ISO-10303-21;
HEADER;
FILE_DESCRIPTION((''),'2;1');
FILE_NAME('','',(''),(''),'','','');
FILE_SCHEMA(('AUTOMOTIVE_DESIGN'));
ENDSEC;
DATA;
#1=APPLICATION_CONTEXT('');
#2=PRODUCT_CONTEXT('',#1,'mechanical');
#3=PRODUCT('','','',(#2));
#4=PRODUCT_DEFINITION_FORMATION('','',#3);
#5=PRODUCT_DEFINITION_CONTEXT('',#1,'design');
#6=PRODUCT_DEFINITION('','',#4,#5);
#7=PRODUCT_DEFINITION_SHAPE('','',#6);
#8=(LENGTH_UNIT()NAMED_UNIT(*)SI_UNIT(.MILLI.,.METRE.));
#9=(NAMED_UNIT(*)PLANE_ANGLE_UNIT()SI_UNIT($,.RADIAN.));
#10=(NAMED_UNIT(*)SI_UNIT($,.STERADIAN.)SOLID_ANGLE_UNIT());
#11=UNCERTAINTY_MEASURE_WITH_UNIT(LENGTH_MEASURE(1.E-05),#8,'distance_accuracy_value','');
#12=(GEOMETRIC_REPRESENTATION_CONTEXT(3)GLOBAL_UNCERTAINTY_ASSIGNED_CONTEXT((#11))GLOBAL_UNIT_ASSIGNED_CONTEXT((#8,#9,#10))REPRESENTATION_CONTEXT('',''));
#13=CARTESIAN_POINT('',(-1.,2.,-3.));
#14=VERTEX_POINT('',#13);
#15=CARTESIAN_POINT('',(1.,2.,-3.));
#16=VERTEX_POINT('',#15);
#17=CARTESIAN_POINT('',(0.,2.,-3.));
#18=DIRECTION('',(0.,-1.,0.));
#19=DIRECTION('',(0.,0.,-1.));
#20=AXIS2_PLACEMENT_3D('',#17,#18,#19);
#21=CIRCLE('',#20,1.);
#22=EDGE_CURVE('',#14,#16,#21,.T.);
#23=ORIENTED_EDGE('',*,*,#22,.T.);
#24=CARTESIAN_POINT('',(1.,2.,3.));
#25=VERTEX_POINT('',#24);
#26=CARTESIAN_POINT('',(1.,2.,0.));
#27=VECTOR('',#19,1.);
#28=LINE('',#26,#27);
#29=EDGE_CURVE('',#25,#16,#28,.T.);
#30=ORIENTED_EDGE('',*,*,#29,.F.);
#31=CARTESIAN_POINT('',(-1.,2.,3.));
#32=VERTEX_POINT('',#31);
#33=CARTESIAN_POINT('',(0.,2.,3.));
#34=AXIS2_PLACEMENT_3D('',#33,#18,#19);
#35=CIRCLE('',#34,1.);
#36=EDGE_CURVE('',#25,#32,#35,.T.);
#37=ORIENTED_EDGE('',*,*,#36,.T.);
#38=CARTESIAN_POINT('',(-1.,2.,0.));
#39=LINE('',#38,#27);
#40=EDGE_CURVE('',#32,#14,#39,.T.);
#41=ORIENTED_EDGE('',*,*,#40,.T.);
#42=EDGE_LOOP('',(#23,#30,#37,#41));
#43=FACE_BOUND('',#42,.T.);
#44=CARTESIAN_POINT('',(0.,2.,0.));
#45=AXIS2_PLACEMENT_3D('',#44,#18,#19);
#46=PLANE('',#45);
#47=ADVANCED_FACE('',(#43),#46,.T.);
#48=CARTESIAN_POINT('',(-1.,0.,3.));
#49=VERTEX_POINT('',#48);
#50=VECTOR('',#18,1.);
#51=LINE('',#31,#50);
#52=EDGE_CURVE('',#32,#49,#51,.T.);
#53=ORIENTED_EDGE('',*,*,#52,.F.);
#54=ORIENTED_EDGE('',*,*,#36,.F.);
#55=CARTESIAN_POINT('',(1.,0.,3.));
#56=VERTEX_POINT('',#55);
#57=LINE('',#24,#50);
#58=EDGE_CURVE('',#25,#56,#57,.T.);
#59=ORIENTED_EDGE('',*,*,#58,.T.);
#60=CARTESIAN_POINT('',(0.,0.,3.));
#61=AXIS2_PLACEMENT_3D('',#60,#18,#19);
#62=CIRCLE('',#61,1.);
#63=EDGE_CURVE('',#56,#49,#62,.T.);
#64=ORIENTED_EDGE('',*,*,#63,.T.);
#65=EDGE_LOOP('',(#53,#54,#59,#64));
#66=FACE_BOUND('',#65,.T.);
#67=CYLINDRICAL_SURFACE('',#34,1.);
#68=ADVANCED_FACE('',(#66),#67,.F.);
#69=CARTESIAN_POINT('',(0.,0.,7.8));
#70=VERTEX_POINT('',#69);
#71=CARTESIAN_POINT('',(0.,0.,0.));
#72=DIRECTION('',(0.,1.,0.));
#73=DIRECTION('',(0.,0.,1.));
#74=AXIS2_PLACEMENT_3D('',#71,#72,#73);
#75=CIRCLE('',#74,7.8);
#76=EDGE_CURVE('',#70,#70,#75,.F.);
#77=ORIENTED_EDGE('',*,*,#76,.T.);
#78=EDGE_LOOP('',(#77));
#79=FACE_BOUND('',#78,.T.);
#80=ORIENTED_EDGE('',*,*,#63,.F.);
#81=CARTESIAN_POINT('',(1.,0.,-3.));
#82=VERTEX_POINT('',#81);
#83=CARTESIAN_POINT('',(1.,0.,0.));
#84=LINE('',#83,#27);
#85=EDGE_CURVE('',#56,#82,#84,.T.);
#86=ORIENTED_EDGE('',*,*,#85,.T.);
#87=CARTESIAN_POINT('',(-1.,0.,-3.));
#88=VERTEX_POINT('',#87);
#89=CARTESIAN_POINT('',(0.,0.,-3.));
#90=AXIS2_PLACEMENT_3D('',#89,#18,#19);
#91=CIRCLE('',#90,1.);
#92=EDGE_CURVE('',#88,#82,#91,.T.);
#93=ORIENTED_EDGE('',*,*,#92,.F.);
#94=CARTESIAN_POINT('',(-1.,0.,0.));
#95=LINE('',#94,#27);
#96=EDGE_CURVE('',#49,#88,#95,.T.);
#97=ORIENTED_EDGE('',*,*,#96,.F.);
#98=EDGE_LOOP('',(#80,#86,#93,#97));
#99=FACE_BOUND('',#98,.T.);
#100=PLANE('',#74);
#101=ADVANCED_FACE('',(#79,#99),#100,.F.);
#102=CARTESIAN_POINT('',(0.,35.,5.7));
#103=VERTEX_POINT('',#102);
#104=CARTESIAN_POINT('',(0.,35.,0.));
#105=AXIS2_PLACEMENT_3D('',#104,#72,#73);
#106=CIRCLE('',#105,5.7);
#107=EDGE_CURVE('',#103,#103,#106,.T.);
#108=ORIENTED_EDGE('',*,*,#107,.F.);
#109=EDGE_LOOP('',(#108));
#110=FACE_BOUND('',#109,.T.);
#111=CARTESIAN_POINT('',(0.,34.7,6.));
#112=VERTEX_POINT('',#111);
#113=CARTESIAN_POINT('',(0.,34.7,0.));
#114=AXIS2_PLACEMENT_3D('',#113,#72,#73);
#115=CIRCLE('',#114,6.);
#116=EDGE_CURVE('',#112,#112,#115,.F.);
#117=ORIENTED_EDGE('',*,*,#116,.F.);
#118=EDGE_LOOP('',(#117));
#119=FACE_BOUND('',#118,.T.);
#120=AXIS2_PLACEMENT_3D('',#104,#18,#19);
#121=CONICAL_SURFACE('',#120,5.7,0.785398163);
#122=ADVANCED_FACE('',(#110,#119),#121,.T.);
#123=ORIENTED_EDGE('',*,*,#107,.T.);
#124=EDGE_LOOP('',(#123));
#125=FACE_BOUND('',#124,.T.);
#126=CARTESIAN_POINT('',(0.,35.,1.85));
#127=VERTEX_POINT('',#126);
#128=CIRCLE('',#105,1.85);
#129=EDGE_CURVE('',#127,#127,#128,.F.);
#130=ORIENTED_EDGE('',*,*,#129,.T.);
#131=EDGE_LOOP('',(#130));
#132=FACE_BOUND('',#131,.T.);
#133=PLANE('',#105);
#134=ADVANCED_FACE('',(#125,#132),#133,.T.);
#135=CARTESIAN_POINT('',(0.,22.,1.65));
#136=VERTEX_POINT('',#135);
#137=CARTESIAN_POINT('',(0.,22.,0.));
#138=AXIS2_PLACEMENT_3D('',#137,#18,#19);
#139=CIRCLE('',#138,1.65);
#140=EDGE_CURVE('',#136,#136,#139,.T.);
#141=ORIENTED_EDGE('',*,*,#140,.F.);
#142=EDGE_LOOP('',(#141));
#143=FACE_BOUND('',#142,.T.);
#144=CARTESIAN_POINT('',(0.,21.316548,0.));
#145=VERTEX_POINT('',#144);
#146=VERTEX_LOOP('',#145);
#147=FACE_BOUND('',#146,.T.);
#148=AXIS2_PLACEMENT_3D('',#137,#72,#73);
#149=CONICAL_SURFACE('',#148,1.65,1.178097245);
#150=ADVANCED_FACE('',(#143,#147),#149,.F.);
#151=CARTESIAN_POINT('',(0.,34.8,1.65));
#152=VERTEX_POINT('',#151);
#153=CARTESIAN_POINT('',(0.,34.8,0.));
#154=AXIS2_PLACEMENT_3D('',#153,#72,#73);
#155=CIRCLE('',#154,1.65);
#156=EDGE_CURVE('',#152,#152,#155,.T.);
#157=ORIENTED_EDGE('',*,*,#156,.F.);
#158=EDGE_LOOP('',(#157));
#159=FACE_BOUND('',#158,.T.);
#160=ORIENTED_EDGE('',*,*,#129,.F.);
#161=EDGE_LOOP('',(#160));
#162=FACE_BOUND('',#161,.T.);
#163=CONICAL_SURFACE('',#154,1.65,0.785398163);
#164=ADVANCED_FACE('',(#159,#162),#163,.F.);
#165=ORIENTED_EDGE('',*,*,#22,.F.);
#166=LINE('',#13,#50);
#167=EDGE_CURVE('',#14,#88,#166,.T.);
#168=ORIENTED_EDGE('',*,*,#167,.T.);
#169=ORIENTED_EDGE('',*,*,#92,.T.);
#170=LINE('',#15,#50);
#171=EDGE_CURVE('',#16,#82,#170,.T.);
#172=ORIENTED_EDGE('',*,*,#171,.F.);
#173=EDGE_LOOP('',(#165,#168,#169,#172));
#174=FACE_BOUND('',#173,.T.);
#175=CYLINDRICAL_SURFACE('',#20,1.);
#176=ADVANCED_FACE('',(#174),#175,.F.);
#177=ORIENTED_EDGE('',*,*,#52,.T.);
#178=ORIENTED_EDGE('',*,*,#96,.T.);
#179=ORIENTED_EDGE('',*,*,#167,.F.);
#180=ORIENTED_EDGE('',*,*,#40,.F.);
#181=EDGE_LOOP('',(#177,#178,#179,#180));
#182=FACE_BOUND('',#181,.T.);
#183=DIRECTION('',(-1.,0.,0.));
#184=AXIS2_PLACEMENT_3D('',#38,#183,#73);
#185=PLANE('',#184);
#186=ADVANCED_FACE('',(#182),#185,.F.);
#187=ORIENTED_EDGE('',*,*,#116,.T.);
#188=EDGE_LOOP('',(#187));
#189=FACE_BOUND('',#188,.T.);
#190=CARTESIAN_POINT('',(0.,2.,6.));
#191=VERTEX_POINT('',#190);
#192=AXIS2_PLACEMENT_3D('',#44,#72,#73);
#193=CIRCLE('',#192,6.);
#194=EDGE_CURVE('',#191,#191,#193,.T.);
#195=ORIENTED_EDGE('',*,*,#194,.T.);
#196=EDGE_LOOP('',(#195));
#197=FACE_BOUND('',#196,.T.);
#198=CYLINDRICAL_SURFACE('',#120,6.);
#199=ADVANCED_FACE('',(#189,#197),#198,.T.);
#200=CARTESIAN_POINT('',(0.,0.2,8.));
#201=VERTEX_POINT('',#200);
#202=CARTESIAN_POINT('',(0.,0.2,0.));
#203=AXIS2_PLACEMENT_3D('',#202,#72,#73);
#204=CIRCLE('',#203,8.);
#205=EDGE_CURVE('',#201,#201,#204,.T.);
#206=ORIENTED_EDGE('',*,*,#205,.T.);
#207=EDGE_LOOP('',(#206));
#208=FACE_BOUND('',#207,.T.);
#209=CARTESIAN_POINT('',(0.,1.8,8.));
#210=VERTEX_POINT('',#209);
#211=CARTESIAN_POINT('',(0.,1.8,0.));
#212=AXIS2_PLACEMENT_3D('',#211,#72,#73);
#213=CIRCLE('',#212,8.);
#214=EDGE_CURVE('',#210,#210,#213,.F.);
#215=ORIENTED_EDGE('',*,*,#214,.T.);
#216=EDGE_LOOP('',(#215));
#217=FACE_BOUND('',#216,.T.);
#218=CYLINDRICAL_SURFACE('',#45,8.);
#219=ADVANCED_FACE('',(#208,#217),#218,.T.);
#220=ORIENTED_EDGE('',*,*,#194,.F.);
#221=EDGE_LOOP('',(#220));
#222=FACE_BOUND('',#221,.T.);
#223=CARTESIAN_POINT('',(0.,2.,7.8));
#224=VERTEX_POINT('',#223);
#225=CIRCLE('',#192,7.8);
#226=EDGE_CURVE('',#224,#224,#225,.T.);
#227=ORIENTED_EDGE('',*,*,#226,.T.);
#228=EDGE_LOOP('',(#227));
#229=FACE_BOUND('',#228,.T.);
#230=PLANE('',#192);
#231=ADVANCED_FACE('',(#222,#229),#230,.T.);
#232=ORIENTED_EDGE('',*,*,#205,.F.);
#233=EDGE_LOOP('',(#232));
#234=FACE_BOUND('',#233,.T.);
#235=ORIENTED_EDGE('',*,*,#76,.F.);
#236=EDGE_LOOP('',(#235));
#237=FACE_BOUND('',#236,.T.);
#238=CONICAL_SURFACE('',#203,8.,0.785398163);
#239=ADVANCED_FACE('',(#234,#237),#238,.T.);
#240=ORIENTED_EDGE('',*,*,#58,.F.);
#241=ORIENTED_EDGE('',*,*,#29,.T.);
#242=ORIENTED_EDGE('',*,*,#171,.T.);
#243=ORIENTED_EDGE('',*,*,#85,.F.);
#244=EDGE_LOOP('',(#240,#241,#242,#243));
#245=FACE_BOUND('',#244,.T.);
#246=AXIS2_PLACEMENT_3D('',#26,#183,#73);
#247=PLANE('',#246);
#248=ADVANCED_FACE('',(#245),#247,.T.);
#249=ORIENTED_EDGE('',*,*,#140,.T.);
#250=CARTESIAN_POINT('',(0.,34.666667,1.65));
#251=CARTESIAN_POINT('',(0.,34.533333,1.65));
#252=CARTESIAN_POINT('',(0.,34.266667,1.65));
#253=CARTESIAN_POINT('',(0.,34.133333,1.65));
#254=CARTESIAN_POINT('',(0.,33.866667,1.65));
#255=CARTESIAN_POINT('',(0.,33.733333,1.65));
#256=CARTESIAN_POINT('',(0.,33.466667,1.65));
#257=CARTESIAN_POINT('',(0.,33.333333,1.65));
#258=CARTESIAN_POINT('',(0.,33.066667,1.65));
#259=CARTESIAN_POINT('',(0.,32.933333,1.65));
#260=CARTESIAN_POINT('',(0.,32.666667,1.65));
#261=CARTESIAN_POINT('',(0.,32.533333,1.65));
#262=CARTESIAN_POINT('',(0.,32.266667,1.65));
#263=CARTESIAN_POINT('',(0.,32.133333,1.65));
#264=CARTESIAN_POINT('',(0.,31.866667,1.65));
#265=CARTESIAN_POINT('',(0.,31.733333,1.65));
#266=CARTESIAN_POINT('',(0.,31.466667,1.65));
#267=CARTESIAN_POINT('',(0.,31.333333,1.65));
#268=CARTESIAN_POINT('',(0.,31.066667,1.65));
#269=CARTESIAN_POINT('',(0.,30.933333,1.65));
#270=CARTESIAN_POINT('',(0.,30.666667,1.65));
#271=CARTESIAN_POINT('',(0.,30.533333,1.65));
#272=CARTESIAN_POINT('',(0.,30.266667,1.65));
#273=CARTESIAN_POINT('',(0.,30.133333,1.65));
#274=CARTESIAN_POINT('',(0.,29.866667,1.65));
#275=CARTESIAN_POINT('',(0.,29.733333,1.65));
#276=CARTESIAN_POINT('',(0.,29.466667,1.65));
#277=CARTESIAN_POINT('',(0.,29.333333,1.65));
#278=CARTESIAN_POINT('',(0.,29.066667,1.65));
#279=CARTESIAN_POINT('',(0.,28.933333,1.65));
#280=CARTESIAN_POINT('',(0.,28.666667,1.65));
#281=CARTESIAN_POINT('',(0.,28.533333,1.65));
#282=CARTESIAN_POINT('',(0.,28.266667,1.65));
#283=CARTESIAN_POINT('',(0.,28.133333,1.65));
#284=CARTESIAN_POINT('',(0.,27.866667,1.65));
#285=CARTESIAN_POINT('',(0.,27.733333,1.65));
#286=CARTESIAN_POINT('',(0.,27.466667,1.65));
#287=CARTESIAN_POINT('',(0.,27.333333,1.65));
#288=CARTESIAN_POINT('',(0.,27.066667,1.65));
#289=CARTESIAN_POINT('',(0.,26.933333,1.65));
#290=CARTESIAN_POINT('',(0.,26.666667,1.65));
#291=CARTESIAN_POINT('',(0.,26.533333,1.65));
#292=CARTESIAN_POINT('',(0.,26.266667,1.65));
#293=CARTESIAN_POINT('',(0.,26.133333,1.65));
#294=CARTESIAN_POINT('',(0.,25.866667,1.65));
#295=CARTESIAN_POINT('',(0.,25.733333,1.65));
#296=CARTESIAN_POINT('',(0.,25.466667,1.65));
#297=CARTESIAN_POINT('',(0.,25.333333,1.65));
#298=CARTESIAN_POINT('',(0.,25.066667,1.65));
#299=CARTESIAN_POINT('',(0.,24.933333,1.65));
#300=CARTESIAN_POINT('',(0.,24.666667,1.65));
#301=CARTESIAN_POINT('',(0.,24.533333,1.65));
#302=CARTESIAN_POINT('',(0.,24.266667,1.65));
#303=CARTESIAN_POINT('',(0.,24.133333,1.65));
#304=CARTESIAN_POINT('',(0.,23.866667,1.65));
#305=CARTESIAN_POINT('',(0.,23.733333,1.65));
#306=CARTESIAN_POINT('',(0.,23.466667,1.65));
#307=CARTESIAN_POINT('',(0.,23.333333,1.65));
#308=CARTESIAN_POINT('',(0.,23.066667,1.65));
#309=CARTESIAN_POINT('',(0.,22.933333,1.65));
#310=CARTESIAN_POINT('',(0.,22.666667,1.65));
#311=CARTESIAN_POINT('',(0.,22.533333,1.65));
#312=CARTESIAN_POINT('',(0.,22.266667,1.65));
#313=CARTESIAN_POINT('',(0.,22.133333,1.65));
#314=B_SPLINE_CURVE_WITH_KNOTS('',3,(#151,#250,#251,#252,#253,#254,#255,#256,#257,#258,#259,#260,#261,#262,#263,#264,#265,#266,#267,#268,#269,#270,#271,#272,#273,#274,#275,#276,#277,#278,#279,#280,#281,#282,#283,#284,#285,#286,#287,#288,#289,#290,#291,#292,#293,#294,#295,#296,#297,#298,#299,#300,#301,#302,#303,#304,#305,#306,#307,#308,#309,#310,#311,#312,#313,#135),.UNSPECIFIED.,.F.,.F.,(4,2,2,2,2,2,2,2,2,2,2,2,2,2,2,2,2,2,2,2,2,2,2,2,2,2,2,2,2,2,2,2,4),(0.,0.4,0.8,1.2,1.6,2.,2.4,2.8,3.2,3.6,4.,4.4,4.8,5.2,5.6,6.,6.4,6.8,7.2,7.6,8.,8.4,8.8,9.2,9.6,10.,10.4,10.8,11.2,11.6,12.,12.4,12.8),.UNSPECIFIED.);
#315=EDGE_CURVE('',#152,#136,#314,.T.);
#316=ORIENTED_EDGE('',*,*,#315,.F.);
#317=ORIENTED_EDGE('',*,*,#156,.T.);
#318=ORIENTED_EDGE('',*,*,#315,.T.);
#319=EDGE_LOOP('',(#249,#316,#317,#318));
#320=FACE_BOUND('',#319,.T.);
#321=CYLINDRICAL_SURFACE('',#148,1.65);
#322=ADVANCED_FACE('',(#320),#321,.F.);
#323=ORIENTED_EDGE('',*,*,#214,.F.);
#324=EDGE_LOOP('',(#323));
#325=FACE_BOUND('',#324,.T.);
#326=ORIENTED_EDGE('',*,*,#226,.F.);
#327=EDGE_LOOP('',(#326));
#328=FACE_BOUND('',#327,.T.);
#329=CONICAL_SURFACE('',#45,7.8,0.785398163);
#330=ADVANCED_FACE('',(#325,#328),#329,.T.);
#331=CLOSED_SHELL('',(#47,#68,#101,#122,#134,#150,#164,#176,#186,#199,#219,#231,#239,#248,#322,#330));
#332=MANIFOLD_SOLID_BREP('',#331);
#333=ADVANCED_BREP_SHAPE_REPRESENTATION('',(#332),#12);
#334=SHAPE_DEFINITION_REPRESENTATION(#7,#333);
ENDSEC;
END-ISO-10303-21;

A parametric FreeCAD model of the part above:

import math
import FreeCAD as App
import Part
import Sketcher

V = App.Vector
Q = App.Units.Quantity


def edges_at(feature, points):
    """Names of the edges that pass closest to the given points."""
    edges = feature.Shape.Edges
    near = lambda p: min(range(len(edges)), key=lambda i: edges[i].distToShape(Part.Vertex(*p))[0])
    return sorted({f"Edge{near(p) + 1}" for p in points})

doc = App.newDocument("Part")
body = doc.addObject("PartDesign::Body", "Body")

sketch1 = body.newObject("Sketcher::SketchObject", "Sketch")
sketch1.AttachmentSupport = (doc.getObject("XZ_Plane"), [""])
sketch1.MapMode = "FlatFace"
sketch1.addGeometry(Part.Circle(V(0, 0, 0), V(0, 0, 1), 8), False)
sketch1.addGeometry(Part.Circle(V(0, 0, 0), V(0, 0, 1), 6), False)
sketch1.addConstraint(Sketcher.Constraint("Coincident", 0, 3, -1, 1))
sketch1.addConstraint(Sketcher.Constraint("Coincident", 1, 3, -1, 1))
sketch1.addConstraint(Sketcher.Constraint("Diameter", 0, 16.0))
sketch1.addConstraint(Sketcher.Constraint("Diameter", 1, 12.0))
pad1 = body.newObject("PartDesign::Pad", "Pad")
pad1.Profile = sketch1
pad1.Length = 2
pad1.Reversed = True

sketch2 = body.newObject("Sketcher::SketchObject", "Sketch001")
sketch2.AttachmentSupport = (doc.getObject("XZ_Plane"), [""])
sketch2.MapMode = "FlatFace"
sketch2.addGeometry(Part.Circle(V(0, 0, 0), V(0, 0, 1), 6), False)
sketch2.addConstraint(Sketcher.Constraint("Coincident", 0, 3, -1, 1))
sketch2.addConstraint(Sketcher.Constraint("Diameter", 0, 12.0))
pad2 = body.newObject("PartDesign::Pad", "Pad001")
pad2.Profile = sketch2
pad2.Length = 35
pad2.Reversed = True

sketch3 = body.newObject("Sketcher::SketchObject", "Sketch002")
sketch3.AttachmentSupport = (doc.getObject("XZ_Plane"), [""])
sketch3.MapMode = "FlatFace"
sketch3.addGeometry(Part.ArcOfCircle(Part.Circle(V(0, 3, 0), V(0, 0, 1), 1), math.radians(0), math.radians(180)), False)
sketch3.addGeometry(Part.LineSegment(V(-1, 3, 0), V(-1, -3, 0)), False)
sketch3.addGeometry(Part.ArcOfCircle(Part.Circle(V(0, -3, 0), V(0, 0, 1), 1), math.radians(180), math.radians(360)), False)
sketch3.addGeometry(Part.LineSegment(V(1, -3, 0), V(1, 3, 0)), False)
sketch3.addConstraint(Sketcher.Constraint("Tangent", 0, 2, 1, 1))
sketch3.addConstraint(Sketcher.Constraint("Tangent", 1, 2, 2, 1))
sketch3.addConstraint(Sketcher.Constraint("Tangent", 2, 2, 3, 1))
sketch3.addConstraint(Sketcher.Constraint("Tangent", 3, 2, 0, 1))
sketch3.addConstraint(Sketcher.Constraint("Vertical", 1))
sketch3.addConstraint(Sketcher.Constraint("Vertical", 3))
sketch3.addConstraint(Sketcher.Constraint("Symmetric", 0, 3, 2, 3, -1, 1))
sketch3.addConstraint(Sketcher.Constraint("Radius", 0, 1.0))
sketch3.addConstraint(Sketcher.Constraint("DistanceY", 1, 2, 1, 1, 6.0))
pocket1 = body.newObject("PartDesign::Pocket", "Pocket")
pocket1.Profile = sketch3
pocket1.Length = 2

sketch4 = body.newObject("Sketcher::SketchObject", "Sketch003")
sketch4.AttachmentSupport = (doc.getObject("XZ_Plane"), [""])
sketch4.MapMode = "FlatFace"
sketch4.AttachmentOffset = App.Placement(V(0, 0, -35), App.Rotation())
sketch4.addGeometry(Part.Circle(V(0, 0, 0), V(0, 0, 1), 1.6), False)
sketch4.addConstraint(Sketcher.Constraint("Coincident", 0, 3, -1, 1))
sketch4.addConstraint(Sketcher.Constraint("Diameter", 0, 3.3))
pocket2 = body.newObject("PartDesign::Pocket", "Pocket001")
pocket2.Profile = sketch4
pocket2.Length = 13
pocket2.Reversed = True
doc.recompute()

chamfer = body.newObject("PartDesign::Chamfer", "Chamfer")
chamfer.Base = (pocket2, edges_at(pocket2, [(0, 2, -8), (0, 35, -1.65), (0, 0, -8)]))
chamfer.Size = 0.2
doc.recompute()

chamfer2 = body.newObject("PartDesign::Chamfer", "Chamfer001")
chamfer2.Base = (chamfer, edges_at(chamfer, [(0, 35, -6)]))
chamfer2.Size = 0.3

sketch5 = body.newObject("Sketcher::SketchObject", "Sketch004")
sketch5.AttachmentSupport = (doc.getObject("XY_Plane"), [""])
sketch5.MapMode = "FlatFace"
sketch5.addGeometry(Part.LineSegment(V(-1.6, 22, 0), V(0, 21.3, 0)), False)
sketch5.addGeometry(Part.LineSegment(V(0, 21.3, 0), V(0, 22, 0)), False)
sketch5.addGeometry(Part.LineSegment(V(0, 22, 0), V(-1.6, 22, 0)), False)
sketch5.addConstraint(Sketcher.Constraint("Coincident", 0, 2, 1, 1))
sketch5.addConstraint(Sketcher.Constraint("Coincident", 1, 2, 2, 1))
sketch5.addConstraint(Sketcher.Constraint("Coincident", 2, 2, 0, 1))
sketch5.addConstraint(Sketcher.Constraint("Vertical", 1))
sketch5.addConstraint(Sketcher.Constraint("Horizontal", 2))
sketch5.addConstraint(Sketcher.Constraint("PointOnObject", 0, 2, -2))
sketch5.addConstraint(Sketcher.Constraint("DistanceY", -1, 1, 1, 2, 22.0))
sketch5.addConstraint(Sketcher.Constraint("Angle", 0, Q("-22.5 deg")))
sketch5.addConstraint(Sketcher.Constraint("DistanceX", 2, 2, 2, 1, 1.65))
groove = body.newObject("PartDesign::Groove", "Groove")
groove.Profile = sketch5
groove.ReferenceAxis = (sketch5, ["V_Axis"])
groove.Angle = 360

doc.recompute()
